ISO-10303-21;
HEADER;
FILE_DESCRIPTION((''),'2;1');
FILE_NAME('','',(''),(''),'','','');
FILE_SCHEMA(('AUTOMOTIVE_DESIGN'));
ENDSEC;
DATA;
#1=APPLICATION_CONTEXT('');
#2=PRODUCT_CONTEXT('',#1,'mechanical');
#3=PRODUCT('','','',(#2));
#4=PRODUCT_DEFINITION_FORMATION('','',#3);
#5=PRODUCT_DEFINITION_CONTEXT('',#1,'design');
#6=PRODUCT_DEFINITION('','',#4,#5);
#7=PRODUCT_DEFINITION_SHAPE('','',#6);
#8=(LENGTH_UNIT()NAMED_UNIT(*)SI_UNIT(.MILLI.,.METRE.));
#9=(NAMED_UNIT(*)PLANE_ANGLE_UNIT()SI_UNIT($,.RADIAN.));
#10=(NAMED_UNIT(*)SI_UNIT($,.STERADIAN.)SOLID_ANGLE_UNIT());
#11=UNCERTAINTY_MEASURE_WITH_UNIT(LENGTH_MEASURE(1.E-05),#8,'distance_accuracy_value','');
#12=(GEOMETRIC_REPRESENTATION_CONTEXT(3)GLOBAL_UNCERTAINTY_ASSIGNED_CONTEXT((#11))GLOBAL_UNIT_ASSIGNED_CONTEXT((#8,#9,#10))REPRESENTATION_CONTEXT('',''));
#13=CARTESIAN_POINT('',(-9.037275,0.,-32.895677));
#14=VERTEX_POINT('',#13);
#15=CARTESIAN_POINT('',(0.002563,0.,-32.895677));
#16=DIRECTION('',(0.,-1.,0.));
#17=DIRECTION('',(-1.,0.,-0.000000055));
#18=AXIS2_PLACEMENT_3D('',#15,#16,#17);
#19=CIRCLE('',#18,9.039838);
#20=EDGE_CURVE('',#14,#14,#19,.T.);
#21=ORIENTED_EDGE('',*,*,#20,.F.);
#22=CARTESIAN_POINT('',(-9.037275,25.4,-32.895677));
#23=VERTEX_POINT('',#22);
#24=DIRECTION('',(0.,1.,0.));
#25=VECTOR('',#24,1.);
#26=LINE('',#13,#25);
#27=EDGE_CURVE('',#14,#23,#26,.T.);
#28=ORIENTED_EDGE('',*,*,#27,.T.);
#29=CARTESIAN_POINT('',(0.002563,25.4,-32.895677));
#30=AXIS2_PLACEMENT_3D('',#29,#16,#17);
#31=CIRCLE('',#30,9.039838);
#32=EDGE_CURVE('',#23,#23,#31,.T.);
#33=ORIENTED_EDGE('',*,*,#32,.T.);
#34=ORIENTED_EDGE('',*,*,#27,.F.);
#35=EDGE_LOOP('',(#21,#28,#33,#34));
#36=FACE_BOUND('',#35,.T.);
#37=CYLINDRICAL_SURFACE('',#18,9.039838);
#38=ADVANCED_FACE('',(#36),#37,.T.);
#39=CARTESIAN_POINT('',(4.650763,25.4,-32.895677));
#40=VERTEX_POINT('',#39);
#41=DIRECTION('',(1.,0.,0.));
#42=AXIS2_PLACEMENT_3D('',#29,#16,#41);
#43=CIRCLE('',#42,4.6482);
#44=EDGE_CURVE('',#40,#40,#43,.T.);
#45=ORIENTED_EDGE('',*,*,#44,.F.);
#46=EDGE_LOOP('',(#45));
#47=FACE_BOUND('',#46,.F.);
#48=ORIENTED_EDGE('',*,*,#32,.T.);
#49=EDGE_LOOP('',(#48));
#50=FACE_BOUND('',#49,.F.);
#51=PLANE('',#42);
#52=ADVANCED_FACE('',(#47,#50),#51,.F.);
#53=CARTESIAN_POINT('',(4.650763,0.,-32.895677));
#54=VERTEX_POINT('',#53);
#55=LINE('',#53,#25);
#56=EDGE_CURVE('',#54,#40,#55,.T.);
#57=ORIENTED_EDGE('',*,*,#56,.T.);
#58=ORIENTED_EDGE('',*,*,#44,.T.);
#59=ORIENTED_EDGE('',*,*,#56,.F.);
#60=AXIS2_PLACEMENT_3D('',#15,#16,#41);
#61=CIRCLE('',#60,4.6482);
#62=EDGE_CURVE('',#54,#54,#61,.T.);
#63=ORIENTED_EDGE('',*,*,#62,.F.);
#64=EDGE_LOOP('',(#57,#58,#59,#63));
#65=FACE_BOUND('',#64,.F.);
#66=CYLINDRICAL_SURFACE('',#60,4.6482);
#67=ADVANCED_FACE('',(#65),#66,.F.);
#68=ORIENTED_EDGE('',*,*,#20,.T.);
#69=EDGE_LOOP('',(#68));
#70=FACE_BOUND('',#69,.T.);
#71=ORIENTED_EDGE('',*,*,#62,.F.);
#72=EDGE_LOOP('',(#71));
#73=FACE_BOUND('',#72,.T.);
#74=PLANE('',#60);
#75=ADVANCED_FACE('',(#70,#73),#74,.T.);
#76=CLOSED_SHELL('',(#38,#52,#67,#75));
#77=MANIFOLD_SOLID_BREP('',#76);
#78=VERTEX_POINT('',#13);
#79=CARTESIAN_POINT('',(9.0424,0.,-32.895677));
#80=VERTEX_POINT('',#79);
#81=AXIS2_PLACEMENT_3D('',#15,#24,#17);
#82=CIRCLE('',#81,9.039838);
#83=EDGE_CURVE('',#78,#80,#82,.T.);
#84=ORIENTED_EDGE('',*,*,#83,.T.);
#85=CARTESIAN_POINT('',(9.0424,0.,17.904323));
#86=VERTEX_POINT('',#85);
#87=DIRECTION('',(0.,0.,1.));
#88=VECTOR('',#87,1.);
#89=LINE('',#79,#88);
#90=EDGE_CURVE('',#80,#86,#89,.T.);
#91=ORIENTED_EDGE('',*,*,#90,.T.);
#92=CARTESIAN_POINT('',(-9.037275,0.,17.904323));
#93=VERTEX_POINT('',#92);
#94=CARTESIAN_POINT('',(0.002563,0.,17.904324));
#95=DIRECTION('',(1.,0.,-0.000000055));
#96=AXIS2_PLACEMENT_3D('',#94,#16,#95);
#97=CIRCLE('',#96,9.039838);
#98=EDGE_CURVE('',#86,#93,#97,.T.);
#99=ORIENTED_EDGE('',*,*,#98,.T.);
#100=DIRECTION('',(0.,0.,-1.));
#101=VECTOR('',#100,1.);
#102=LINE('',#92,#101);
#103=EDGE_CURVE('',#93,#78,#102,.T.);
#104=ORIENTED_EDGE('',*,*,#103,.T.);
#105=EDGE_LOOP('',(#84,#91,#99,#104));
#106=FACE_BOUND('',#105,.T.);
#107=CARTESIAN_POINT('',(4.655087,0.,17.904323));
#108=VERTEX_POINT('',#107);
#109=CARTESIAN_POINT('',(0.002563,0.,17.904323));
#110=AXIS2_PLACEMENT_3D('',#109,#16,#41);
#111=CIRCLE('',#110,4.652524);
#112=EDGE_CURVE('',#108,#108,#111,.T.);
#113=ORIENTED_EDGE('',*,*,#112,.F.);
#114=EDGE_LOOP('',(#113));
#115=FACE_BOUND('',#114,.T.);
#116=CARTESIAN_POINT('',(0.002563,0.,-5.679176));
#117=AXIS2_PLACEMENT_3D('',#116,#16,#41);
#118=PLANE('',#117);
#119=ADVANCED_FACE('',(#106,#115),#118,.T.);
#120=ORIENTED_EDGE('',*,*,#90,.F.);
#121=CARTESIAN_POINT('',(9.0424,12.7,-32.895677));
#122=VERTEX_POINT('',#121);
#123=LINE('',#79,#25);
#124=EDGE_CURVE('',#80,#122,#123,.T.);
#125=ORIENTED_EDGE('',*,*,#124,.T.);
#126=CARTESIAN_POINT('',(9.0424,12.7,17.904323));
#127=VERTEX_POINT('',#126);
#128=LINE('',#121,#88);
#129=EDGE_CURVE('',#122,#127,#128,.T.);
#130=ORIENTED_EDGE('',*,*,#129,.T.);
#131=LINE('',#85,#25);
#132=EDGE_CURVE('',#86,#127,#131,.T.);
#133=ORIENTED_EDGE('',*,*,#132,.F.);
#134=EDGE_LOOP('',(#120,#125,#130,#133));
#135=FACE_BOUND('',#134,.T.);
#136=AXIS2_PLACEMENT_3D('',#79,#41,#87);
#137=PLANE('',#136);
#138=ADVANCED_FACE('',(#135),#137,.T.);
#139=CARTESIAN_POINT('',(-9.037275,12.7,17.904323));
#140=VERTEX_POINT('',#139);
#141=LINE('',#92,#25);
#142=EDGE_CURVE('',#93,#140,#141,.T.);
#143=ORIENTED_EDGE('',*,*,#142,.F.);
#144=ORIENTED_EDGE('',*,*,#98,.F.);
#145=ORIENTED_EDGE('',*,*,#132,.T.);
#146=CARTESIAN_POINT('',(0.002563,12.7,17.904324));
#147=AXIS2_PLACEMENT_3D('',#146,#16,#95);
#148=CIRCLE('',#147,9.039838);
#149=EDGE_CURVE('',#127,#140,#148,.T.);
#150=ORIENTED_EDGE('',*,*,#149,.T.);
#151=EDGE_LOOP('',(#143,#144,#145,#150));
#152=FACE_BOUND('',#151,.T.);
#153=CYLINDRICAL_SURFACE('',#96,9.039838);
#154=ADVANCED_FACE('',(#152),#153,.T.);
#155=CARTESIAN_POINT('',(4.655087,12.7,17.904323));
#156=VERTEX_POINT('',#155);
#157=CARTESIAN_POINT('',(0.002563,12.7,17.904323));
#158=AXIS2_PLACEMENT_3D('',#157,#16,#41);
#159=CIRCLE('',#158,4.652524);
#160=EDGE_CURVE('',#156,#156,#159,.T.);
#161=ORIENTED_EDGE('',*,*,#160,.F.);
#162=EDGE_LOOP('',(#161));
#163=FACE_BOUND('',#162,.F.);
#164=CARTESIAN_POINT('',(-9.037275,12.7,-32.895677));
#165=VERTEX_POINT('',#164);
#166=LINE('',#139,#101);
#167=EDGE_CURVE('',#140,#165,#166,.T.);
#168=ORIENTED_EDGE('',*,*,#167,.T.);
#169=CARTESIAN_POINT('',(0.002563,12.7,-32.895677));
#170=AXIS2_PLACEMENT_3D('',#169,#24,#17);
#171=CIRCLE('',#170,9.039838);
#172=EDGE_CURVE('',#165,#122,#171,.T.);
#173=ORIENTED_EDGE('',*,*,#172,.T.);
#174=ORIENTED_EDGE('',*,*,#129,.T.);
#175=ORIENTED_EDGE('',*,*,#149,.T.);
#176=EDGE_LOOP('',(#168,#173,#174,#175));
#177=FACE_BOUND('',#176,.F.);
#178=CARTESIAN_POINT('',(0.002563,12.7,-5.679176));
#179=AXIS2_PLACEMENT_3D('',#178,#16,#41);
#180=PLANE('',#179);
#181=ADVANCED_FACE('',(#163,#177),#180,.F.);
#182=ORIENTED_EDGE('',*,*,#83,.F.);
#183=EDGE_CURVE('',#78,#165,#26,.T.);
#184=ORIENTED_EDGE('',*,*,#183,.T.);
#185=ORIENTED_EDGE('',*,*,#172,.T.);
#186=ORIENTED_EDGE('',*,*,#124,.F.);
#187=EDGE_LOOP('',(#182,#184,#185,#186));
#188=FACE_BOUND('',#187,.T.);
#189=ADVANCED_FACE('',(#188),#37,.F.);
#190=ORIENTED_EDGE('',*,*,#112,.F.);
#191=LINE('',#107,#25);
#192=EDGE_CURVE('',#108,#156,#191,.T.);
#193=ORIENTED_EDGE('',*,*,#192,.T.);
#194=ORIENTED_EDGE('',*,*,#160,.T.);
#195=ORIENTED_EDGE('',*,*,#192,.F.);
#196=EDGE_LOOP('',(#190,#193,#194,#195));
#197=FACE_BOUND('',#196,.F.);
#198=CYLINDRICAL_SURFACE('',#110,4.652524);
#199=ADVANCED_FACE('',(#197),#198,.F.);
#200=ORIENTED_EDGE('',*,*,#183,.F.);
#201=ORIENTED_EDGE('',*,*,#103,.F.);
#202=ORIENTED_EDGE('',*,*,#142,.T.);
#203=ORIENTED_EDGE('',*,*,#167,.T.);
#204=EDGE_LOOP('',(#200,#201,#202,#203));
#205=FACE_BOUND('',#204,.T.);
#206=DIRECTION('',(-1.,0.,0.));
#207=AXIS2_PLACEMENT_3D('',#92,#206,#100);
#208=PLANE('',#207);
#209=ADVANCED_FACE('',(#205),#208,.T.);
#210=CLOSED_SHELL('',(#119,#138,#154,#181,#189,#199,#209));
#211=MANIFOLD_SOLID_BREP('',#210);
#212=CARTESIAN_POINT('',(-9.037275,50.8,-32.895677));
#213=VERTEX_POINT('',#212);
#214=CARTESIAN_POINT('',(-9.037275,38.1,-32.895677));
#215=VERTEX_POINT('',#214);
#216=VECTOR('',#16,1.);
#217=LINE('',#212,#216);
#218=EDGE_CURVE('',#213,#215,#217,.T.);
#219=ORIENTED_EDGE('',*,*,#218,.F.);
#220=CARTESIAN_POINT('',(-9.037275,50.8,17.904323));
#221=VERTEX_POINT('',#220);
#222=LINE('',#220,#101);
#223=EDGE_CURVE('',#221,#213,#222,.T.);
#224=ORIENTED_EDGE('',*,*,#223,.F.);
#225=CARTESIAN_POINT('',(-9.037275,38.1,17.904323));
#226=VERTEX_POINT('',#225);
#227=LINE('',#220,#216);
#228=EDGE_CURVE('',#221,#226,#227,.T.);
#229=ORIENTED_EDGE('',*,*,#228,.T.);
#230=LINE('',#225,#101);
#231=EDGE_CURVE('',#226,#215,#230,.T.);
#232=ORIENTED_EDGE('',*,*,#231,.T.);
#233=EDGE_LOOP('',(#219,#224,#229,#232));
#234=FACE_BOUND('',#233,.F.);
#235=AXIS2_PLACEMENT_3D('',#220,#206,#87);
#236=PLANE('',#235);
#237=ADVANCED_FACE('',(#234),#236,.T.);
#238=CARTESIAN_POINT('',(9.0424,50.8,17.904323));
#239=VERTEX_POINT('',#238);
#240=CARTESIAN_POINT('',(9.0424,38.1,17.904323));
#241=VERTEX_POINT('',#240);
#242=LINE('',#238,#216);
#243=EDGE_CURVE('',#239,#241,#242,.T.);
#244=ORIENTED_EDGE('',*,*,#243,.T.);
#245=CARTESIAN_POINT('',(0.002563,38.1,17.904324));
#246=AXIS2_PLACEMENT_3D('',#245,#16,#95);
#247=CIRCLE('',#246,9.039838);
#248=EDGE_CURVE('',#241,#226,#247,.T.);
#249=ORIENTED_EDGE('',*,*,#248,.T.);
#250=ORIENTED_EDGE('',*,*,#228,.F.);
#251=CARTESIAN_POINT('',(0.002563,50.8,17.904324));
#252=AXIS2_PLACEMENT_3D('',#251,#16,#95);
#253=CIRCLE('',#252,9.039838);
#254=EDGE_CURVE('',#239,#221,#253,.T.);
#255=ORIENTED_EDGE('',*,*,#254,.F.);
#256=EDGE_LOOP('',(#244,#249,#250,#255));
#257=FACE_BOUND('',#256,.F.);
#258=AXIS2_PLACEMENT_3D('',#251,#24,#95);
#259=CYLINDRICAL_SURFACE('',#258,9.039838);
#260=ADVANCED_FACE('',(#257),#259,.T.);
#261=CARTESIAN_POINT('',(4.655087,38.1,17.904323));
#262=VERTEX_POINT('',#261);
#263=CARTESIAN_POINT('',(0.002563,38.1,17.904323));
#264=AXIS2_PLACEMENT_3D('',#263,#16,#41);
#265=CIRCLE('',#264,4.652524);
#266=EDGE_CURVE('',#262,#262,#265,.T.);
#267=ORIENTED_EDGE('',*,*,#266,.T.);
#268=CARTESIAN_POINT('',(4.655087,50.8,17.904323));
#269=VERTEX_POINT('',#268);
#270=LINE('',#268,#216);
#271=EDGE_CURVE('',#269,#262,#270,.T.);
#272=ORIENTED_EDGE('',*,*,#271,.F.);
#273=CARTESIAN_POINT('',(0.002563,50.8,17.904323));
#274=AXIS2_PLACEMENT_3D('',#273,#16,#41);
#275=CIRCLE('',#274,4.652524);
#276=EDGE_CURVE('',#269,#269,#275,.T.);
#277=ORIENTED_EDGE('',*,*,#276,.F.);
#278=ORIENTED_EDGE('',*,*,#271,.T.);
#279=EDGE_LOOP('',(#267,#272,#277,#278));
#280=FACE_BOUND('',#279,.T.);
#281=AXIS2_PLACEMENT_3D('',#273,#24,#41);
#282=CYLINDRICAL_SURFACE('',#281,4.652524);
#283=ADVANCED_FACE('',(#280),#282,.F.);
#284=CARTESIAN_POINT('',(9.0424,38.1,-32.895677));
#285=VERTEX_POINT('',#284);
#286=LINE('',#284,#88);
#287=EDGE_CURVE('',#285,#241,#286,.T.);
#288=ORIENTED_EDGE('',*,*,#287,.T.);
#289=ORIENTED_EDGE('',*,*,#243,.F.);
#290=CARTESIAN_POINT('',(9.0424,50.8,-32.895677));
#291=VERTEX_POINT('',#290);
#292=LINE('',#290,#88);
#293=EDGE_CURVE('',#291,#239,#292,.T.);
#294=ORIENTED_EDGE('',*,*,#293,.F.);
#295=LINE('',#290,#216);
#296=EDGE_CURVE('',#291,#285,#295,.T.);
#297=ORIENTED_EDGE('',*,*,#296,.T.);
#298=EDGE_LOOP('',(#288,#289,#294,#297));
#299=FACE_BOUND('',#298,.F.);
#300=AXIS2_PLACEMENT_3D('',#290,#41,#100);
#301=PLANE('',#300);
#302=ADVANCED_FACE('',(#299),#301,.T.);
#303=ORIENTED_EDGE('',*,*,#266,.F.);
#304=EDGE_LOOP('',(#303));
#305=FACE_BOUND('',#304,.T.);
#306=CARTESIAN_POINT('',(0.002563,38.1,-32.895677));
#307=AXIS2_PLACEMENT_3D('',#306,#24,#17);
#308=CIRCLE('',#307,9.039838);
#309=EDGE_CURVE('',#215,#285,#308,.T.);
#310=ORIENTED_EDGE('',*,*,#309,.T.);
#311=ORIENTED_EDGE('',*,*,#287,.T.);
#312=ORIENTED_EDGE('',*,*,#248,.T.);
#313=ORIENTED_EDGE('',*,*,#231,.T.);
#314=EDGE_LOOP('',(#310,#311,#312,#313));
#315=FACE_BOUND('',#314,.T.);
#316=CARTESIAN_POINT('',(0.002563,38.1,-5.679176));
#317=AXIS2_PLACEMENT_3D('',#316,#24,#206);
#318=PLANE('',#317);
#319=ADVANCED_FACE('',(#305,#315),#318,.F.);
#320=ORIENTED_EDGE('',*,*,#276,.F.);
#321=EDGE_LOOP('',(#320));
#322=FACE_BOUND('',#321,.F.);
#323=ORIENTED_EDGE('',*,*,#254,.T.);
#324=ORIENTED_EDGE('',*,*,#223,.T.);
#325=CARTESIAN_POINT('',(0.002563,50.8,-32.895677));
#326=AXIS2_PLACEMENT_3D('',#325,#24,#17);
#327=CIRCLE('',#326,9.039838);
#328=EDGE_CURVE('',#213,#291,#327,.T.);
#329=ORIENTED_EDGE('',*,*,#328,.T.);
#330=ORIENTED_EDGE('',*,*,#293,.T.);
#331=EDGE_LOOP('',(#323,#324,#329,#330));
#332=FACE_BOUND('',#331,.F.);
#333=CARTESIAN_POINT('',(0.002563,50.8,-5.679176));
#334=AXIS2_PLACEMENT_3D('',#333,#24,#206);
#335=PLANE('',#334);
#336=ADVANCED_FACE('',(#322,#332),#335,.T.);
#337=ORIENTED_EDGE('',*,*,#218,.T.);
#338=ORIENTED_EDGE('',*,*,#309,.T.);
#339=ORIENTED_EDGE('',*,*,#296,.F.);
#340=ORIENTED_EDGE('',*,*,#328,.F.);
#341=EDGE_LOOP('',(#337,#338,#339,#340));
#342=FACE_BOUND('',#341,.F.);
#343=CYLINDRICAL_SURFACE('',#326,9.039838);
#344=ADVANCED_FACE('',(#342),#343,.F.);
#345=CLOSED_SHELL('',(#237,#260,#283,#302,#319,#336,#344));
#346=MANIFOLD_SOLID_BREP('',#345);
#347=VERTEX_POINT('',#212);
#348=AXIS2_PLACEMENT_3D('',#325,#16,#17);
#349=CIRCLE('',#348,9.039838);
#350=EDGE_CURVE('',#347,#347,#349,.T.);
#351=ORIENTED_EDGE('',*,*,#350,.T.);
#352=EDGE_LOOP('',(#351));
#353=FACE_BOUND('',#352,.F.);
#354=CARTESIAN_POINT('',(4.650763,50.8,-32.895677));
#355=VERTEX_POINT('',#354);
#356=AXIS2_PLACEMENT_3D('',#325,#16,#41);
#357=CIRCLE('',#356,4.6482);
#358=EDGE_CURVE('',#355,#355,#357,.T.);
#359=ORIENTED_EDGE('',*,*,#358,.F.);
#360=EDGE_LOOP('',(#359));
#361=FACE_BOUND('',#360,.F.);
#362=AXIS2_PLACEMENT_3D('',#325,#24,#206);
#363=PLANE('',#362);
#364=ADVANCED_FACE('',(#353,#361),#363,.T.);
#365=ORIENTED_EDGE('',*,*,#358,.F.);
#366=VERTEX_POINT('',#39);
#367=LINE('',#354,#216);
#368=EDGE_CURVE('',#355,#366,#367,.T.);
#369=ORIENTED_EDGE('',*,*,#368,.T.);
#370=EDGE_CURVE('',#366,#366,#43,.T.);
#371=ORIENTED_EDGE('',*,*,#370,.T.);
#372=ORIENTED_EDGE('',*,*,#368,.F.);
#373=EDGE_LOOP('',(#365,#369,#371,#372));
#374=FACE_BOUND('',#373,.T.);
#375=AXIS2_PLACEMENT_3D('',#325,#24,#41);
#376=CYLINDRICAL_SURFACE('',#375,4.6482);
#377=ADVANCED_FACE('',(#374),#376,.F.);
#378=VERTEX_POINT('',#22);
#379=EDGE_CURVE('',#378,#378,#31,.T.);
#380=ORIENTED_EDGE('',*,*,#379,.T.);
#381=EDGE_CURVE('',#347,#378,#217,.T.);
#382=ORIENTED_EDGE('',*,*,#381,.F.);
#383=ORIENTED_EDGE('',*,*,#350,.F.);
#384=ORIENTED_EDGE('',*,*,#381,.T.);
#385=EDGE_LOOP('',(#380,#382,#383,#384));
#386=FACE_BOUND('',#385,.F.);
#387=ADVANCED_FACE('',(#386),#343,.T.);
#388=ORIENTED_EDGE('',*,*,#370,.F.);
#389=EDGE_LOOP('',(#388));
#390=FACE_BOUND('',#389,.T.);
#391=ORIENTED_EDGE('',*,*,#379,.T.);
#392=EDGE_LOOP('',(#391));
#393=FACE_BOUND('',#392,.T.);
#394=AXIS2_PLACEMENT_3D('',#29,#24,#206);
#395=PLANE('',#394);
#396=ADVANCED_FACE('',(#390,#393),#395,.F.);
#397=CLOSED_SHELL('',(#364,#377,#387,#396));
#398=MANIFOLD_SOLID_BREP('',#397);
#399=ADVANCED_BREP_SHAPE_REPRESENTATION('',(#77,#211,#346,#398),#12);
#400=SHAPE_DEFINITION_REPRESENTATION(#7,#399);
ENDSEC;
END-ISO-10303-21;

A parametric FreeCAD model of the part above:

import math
import FreeCAD as App
import Part
import Sketcher
Q = App.Units.Quantity

doc = App.newDocument("Part")
body = doc.addObject("PartDesign::Body", "Body")

# Sketch on XZ plane
sketch1 = body.newObject("Sketcher::SketchObject", "Sketch")
sketch1.AttachmentSupport = (doc.getObject("XZ_Plane"), [""])
sketch1.MapMode = "FlatFace"
sketch1.addGeometry(Part.LineSegment(App.Vector(-9, 17.9, 0), App.Vector(-9, -32.9, 0)), False)
sketch1.addGeometry(Part.ArcOfCircle(Part.Circle(App.Vector(0, -32.9, 0), App.Vector(0, 0, 1), 9), math.radians(0), math.radians(180)), False)
sketch1.addGeometry(Part.LineSegment(App.Vector(9, -32.9, 0), App.Vector(9, 17.9, 0)), False)
sketch1.addGeometry(Part.ArcOfCircle(Part.Circle(App.Vector(0, 17.9, 0), App.Vector(0, 0, 1), 9), math.radians(0), math.radians(180)), False)
sketch1.addGeometry(Part.Circle(App.Vector(0, 17.9, 0), App.Vector(0, 0, 1), 4.7), False)
sketch1.addConstraint(Sketcher.Constraint("Tangent", 0, 2, 1, 2))
sketch1.addConstraint(Sketcher.Constraint("Tangent", 1, 1, 2, 1))
sketch1.addConstraint(Sketcher.Constraint("Tangent", 2, 2, 3, 1))
sketch1.addConstraint(Sketcher.Constraint("Tangent", 3, 2, 0, 1))
sketch1.addConstraint(Sketcher.Constraint("Vertical", 0))
sketch1.addConstraint(Sketcher.Constraint("Vertical", 2))
sketch1.addConstraint(Sketcher.Constraint("Coincident", 4, 3, 3, 3))
sketch1.addConstraint(Sketcher.Constraint("DistanceY", 0, 2, 0, 1, Q("2 in")))
sketch1.addConstraint(Sketcher.Constraint("DistanceX", -1, 1, 1, 1, Q("0.356 in")))
sketch1.addConstraint(Sketcher.Constraint("Diameter", 4, Q("9.305048 mm")))
sketch1.addConstraint(Sketcher.Constraint("Radius", 1, Q("9.039838 mm")))
sketch1.addConstraint(Sketcher.Constraint("DistanceY", 1, 3, -1, 1, Q("32.895677 mm")))
pad1 = body.newObject("PartDesign::Pad", "Pad")
pad1.Profile = sketch1
pad1.Length = Q("0.5 in")
pad1.Reversed = True
body2 = doc.addObject("PartDesign::Body", "Body001")

# Sketch on XZ plane
sketch2 = body2.newObject("Sketcher::SketchObject", "Sketch001")
sketch2.AttachmentSupport = (doc.getObject("XZ_Plane001"), [""])
sketch2.MapMode = "FlatFace"
sketch2.addGeometry(Part.Circle(App.Vector(0, -32.9, 0), App.Vector(0, 0, 1), 9), False)
sketch2.addGeometry(Part.Circle(App.Vector(0, -32.9, 0), App.Vector(0, 0, 1), 4.6), False)
sketch2.addConstraint(Sketcher.Constraint("Coincident", 1, 3, 0, 3))
sketch2.addConstraint(Sketcher.Constraint("Diameter", 1, Q("0.366 in")))
sketch2.addConstraint(Sketcher.Constraint("Diameter", 0, Q("18.079675 mm")))
sketch2.addConstraint(Sketcher.Constraint("DistanceX", -1, 1, 0, 3, Q("0.002563 mm")))
sketch2.addConstraint(Sketcher.Constraint("DistanceY", 0, 3, -1, 1, Q("32.895677 mm")))
pad2 = body2.newObject("PartDesign::Pad", "Pad001")
pad2.Profile = sketch2
pad2.Length = Q("1 in")
pad2.Reversed = True
body3 = doc.addObject("PartDesign::Body", "Body002")
doc.recompute()

mirroring = doc.addObject("Part::Mirroring", "Mirroring")
mirroring.Source = body
mirroring.Base = App.Vector(0.002563, 25.4, -32.895677)
mirroring.Normal = App.Vector(0, 1, 0)
body3.BaseFeature = mirroring
doc.recompute()
body4 = doc.addObject("PartDesign::Body", "Body003")
doc.recompute()

mirroring2 = doc.addObject("Part::Mirroring", "Mirroring001")
mirroring2.Source = body2
mirroring2.Base = App.Vector(0.002563, 25.4, -32.895677)
mirroring2.Normal = App.Vector(0, 1, 0)
body4.BaseFeature = mirroring2
doc.recompute()
mirroring.Visibility = False
mirroring2.Visibility = False

doc.recompute()
